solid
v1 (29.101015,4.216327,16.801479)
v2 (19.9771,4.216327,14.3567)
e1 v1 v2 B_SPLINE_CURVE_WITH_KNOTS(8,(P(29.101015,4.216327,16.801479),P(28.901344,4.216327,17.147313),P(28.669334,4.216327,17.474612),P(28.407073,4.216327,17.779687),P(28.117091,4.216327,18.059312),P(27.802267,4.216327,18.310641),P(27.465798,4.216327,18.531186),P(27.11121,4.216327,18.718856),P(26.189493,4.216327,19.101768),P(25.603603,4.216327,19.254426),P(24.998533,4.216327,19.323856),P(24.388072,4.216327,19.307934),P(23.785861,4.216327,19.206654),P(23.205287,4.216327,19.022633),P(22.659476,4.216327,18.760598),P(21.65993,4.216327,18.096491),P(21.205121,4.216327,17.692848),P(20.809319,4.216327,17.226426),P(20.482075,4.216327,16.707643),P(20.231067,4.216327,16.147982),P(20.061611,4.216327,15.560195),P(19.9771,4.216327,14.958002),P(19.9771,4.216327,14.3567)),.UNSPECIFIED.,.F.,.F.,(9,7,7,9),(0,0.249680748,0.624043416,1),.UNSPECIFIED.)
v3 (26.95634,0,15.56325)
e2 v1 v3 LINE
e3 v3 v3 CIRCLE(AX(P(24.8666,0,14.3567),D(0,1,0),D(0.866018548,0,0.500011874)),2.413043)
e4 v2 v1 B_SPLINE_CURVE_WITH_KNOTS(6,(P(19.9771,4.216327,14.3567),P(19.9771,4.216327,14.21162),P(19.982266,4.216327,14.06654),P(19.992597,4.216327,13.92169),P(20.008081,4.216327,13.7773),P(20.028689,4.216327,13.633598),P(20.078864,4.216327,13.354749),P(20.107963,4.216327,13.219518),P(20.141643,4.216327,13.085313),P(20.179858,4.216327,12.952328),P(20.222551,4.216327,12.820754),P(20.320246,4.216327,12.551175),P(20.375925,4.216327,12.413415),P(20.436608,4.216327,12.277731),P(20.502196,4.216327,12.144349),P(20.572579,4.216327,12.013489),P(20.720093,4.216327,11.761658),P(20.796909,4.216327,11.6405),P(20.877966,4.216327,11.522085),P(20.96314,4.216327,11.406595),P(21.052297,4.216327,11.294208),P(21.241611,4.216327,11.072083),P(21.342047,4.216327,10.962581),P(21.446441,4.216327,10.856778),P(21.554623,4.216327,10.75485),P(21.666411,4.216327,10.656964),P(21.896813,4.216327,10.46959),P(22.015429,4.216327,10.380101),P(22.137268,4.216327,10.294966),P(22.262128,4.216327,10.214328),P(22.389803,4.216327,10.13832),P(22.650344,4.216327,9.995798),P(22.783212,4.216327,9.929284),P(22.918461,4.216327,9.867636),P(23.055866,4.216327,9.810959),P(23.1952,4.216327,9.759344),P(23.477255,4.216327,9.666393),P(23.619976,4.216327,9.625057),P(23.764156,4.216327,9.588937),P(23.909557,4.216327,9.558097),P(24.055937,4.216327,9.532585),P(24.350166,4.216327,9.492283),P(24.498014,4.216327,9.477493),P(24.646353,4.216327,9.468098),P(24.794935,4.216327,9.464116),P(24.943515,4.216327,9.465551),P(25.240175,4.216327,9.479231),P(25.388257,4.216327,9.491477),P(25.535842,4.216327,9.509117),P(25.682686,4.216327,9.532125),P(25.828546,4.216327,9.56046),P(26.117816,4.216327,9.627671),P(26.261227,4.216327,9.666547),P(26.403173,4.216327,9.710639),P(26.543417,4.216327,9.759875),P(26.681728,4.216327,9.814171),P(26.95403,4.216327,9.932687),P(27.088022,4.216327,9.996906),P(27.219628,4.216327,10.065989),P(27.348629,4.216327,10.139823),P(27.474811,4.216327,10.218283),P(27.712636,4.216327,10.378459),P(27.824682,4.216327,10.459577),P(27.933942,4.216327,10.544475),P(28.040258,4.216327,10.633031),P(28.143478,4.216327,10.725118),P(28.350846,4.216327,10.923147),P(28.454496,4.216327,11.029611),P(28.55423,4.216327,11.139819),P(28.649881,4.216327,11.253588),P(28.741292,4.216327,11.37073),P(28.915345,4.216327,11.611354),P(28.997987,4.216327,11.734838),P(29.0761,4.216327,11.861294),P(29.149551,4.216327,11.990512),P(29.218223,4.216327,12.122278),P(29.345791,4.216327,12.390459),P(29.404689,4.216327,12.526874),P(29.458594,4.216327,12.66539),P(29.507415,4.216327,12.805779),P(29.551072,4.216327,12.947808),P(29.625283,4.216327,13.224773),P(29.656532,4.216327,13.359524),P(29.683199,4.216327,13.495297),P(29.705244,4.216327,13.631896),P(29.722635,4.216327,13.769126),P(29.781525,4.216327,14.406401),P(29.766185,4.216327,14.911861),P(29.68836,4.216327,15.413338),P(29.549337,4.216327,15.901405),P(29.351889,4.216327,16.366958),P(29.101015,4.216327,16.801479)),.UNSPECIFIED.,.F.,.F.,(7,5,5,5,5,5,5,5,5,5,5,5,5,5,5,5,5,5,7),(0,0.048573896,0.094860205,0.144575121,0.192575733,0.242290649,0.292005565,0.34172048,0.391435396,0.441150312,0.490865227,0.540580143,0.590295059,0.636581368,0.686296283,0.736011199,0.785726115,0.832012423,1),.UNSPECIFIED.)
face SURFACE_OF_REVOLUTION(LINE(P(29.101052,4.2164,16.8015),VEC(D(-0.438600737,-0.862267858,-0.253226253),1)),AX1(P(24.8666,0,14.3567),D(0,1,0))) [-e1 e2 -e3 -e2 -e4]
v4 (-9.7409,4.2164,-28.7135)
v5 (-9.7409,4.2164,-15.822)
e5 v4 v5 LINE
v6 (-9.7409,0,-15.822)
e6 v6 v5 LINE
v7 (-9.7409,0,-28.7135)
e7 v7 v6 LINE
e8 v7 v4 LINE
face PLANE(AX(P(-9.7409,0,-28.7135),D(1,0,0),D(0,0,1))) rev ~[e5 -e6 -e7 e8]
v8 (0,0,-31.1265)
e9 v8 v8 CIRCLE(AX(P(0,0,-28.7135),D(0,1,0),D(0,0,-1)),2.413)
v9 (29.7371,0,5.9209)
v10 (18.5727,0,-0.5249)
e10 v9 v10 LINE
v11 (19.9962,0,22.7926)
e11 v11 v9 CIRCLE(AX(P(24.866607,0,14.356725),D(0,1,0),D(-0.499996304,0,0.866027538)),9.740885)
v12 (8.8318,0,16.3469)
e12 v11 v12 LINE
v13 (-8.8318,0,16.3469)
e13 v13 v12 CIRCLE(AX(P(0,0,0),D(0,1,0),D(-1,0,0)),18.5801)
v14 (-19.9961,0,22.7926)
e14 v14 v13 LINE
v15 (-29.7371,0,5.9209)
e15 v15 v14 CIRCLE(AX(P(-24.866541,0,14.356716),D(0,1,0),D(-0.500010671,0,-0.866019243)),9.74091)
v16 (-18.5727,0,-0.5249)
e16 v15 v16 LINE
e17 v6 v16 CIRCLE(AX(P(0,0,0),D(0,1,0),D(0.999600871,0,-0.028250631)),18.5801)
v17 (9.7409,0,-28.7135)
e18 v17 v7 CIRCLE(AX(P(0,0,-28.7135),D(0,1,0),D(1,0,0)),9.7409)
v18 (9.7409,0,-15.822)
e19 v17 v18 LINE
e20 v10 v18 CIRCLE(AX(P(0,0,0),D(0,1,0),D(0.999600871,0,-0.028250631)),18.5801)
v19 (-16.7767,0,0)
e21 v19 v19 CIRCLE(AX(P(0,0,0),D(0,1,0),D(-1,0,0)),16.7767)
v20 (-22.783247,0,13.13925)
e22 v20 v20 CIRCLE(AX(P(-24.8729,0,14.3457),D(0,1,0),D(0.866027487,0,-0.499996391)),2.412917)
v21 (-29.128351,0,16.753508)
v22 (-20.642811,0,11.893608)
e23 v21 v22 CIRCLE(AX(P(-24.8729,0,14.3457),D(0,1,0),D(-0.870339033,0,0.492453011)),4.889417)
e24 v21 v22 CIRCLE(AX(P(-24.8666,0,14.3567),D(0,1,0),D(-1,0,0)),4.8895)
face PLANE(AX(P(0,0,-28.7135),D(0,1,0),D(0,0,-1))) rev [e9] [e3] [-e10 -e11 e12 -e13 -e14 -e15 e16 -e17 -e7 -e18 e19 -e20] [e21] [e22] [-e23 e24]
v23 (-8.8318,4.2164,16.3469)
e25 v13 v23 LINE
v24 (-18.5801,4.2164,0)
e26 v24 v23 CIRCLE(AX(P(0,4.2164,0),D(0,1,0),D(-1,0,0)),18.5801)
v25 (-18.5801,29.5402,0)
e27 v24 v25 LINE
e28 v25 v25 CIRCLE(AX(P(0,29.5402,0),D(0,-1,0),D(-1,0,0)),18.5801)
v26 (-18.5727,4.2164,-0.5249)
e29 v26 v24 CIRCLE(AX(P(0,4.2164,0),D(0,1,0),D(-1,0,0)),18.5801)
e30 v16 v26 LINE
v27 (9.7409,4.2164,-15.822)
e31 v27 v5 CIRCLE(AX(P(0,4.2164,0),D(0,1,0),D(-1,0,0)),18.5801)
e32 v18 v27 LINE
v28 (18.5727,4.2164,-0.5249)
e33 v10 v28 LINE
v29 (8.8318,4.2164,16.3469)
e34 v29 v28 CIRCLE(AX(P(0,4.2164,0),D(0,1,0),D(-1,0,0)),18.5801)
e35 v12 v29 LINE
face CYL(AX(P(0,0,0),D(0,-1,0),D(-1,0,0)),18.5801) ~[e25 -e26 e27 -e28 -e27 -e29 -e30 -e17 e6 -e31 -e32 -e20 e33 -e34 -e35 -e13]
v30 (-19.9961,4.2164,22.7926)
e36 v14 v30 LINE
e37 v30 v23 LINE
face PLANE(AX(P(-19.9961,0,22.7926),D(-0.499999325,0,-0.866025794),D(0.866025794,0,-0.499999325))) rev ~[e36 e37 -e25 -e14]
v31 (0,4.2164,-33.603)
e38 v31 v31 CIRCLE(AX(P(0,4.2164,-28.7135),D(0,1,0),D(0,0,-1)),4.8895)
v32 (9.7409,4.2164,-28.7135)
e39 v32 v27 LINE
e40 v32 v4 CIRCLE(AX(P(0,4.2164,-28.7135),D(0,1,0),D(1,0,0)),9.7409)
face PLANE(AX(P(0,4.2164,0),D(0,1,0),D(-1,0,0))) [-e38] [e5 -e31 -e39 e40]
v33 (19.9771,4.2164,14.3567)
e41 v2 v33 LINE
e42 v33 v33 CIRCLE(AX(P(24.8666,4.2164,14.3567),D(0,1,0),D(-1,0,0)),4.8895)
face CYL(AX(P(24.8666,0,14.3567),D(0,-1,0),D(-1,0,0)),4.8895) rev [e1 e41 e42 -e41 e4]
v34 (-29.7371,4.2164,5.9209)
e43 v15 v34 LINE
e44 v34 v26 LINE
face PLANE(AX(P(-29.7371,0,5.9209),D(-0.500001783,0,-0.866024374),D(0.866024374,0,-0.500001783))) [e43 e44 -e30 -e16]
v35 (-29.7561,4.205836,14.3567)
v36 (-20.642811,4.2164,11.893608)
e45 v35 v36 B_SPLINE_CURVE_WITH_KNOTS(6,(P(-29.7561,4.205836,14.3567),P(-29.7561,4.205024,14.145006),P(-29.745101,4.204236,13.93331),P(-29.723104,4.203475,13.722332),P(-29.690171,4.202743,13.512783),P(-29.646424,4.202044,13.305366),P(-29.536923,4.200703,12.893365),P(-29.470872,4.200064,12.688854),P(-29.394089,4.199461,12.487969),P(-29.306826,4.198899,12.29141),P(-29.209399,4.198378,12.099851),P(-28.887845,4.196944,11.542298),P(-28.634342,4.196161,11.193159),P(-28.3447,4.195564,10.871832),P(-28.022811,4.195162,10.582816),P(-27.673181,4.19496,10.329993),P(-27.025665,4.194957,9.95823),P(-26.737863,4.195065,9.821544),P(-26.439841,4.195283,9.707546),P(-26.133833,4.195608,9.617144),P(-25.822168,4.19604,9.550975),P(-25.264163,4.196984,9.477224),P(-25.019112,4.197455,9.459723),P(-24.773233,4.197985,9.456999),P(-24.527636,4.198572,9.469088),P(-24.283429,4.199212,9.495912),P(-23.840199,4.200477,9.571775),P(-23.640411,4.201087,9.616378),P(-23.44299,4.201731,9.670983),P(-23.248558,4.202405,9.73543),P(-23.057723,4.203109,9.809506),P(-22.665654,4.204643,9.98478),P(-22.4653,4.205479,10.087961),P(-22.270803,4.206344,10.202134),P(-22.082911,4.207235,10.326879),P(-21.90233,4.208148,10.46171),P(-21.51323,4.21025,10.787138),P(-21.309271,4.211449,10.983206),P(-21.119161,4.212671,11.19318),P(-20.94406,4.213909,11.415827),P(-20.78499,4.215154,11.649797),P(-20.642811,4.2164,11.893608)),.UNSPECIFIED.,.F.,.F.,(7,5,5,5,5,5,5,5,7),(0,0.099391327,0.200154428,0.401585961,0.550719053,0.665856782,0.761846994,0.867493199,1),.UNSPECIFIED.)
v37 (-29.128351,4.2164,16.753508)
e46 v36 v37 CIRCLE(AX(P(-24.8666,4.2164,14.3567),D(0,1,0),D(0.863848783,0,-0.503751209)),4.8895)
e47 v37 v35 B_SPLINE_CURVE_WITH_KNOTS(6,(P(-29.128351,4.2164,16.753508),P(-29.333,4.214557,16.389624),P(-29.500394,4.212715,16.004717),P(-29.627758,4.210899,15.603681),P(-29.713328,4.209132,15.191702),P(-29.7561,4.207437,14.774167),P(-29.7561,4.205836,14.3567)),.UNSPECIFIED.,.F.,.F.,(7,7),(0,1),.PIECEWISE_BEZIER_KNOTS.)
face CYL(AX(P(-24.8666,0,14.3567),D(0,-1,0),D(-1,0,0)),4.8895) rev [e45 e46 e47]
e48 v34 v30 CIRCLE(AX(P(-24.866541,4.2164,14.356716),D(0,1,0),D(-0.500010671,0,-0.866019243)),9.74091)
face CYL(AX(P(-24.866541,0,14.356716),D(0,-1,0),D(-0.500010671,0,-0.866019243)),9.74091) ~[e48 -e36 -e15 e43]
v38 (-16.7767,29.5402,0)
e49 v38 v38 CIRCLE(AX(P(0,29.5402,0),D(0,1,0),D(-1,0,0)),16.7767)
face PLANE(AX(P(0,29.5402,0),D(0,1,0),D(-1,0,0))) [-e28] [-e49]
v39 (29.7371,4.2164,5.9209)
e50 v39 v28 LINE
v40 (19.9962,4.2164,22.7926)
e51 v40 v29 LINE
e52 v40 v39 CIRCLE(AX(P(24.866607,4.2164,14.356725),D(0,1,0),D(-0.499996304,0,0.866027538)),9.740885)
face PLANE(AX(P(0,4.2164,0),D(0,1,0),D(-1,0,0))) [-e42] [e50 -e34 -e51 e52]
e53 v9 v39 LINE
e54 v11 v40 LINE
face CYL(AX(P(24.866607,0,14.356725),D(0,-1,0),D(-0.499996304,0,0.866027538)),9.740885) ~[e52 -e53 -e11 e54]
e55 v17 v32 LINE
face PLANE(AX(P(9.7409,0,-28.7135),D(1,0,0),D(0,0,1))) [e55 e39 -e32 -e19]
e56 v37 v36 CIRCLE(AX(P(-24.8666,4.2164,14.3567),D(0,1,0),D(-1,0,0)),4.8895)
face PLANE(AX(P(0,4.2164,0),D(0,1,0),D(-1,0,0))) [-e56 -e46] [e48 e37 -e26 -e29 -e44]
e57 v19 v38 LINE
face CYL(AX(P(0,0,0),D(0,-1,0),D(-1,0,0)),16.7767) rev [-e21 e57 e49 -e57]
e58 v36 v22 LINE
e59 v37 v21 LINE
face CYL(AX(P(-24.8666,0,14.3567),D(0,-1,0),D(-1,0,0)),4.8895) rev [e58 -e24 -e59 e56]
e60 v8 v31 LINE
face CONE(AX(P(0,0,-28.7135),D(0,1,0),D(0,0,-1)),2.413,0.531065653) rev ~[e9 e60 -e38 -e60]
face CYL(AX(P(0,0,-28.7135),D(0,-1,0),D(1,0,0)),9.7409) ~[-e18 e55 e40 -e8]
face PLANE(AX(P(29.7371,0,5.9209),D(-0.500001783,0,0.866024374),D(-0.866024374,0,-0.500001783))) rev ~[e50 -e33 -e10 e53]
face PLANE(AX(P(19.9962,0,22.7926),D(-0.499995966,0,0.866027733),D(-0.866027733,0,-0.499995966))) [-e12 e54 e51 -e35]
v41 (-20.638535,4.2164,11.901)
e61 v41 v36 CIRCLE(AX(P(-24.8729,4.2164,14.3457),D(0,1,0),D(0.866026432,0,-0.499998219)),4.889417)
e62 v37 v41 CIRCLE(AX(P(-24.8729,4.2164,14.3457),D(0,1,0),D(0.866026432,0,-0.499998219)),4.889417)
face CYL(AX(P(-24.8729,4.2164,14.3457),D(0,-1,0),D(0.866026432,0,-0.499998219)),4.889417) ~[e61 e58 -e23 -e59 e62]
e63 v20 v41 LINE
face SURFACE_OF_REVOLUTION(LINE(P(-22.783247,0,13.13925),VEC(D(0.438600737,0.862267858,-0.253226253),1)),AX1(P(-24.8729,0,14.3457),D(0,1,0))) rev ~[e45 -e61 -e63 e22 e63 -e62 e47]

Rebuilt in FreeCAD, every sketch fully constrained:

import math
import FreeCAD as App
import Part
import Sketcher
from FreeCAD import Vector
Q = App.Units.Quantity


def add_polygon(sketch, points):
    """Adds a closed chain of lines whose ends are joined by coincident constraints."""
    first, n = sketch.GeometryCount, len(points)
    for a, b in zip(points, points[1:] + points[:1]):
        sketch.addGeometry(Part.LineSegment(App.Vector(*a, 0), App.Vector(*b, 0)), False)
    for i in range(n):
        sketch.addConstraint(Sketcher.Constraint("Coincident", first + i, 2, first + (i + 1) % n, 1))

doc = App.newDocument("Part")
body = doc.addObject("PartDesign::Body", "Body")

# Sketch on XZ plane
sketch1 = body.newObject("Sketcher::SketchObject", "Sketch")
sketch1.AttachmentSupport = (doc.getObject("XZ_Plane"), [""])
sketch1.MapMode = "FlatFace"
sketch1.addGeometry(Part.Circle(Vector(0, 0, 0), Vector(0, 0, 1), 19), False)
sketch1.addGeometry(Part.Circle(Vector(0, 0, 0), Vector(0, 0, 1), 17), False)
sketch1.addConstraint(Sketcher.Constraint("Coincident", 0, 3, -1, 1))
sketch1.addConstraint(Sketcher.Constraint("Coincident", 1, 3, -1, 1))
sketch1.addConstraint(Sketcher.Constraint("Diameter", 0, Q("1.463 in")))
sketch1.addConstraint(Sketcher.Constraint("Diameter", 1, Q("1.321 in")))
pad1 = body.newObject("PartDesign::Pad", "Pad")
pad1.Profile = sketch1
pad1.Length = Q("1.163 in")
pad1.Reversed = True

# Sketch on XZ plane
sketch2 = body.newObject("Sketcher::SketchObject", "Sketch001")
sketch2.AttachmentSupport = (doc.getObject("XZ_Plane"), [""])
sketch2.MapMode = "FlatFace"
sketch2.addGeometry(Part.ArcOfCircle(Part.Circle(Vector(0, 0, 0), Vector(0, 0, 1), 18.6), math.radians(-2), math.radians(62)), False)
sketch2.addGeometry(Part.LineSegment(Vector(8.8, 16.3, 0), Vector(20, 22.8, 0)), False)
sketch2.addGeometry(Part.ArcOfCircle(Part.Circle(Vector(24.9, 14.4, 0), Vector(0, 0, 1), 9.7), math.radians(-60), math.radians(120)), False)
sketch2.addGeometry(Part.LineSegment(Vector(29.7, 5.9, 0), Vector(18.6, -0.5, 0)), False)
sketch2.addGeometry(Part.Circle(Vector(24.9, 14.4, 0), Vector(0, 0, 1), 4.9), False)
sketch2.addConstraint(Sketcher.Constraint("Coincident", 0, 2, 1, 1))
sketch2.addConstraint(Sketcher.Constraint("Tangent", 1, 2, 2, 2))
sketch2.addConstraint(Sketcher.Constraint("Tangent", 2, 1, 3, 1))
sketch2.addConstraint(Sketcher.Constraint("Coincident", 3, 2, 0, 1))
sketch2.addConstraint(Sketcher.Constraint("Coincident", 0, 3, -1, 1))
sketch2.addConstraint(Sketcher.Constraint("Coincident", 4, 3, 2, 3))
sketch2.addConstraint(Sketcher.Constraint("Parallel", 1, 3))
sketch2.addConstraint(Sketcher.Constraint("Equal", 1, 3))
sketch2.addConstraint(Sketcher.Constraint("Diameter", 4, Q("0.385 in")))
sketch2.addConstraint(Sketcher.Constraint("Angle", 1, Q("29.9997 deg")))
sketch2.addConstraint(Sketcher.Constraint("Radius", 0, Q("0.7315 in")))
sketch2.addConstraint(Sketcher.Constraint("Radius", 2, Q("0.3835 in")))
sketch2.addConstraint(Sketcher.Constraint("DistanceX", -1, 1, 2, 3, Q("0.979 in")))
pad2 = body.newObject("PartDesign::Pad", "Pad001")
pad2.Profile = sketch2
pad2.Length = Q("0.166 in")
pad2.Reversed = True

# Sketch on XZ plane
sketch3 = body.newObject("Sketcher::SketchObject", "Sketch002")
sketch3.AttachmentSupport = (doc.getObject("XZ_Plane"), [""])
sketch3.MapMode = "FlatFace"
sketch3.addGeometry(Part.ArcOfCircle(Part.Circle(Vector(0, 0, 0), Vector(0, 0, 1), 18.6), math.radians(118), math.radians(182)), False)
sketch3.addGeometry(Part.LineSegment(Vector(-18.6, -0.5, 0), Vector(-29.7, 5.9, 0)), False)
sketch3.addGeometry(Part.ArcOfCircle(Part.Circle(Vector(-24.9, 14.4, 0), Vector(0, 0, 1), 9.7), math.radians(60), math.radians(240)), False)
sketch3.addGeometry(Part.LineSegment(Vector(-20, 22.8, 0), Vector(-8.8, 16.3, 0)), False)
sketch3.addGeometry(Part.Circle(Vector(-24.9, 14.4, 0), Vector(0, 0, 1), 4.9), False)
sketch3.addConstraint(Sketcher.Constraint("Coincident", 0, 2, 1, 1))
sketch3.addConstraint(Sketcher.Constraint("Tangent", 1, 2, 2, 2))
sketch3.addConstraint(Sketcher.Constraint("Tangent", 2, 1, 3, 1))
sketch3.addConstraint(Sketcher.Constraint("Coincident", 3, 2, 0, 1))
sketch3.addConstraint(Sketcher.Constraint("Coincident", 0, 3, -1, 1))
sketch3.addConstraint(Sketcher.Constraint("Coincident", 4, 3, 2, 3))
sketch3.addConstraint(Sketcher.Constraint("Parallel", 1, 3))
sketch3.addConstraint(Sketcher.Constraint("Equal", 1, 3))
sketch3.addConstraint(Sketcher.Constraint("Diameter", 4, Q("0.385 in")))
sketch3.addConstraint(Sketcher.Constraint("Angle", 1, Q("150 deg")))
sketch3.addConstraint(Sketcher.Constraint("Radius", 0, Q("0.7315 in")))
sketch3.addConstraint(Sketcher.Constraint("Radius", 2, Q("0.3835 in")))
sketch3.addConstraint(Sketcher.Constraint("DistanceX", 2, 3, -1, 1, Q("0.979 in")))
pad3 = body.newObject("PartDesign::Pad", "Pad002")
pad3.Profile = sketch3
pad3.Length = Q("0.166 in")
pad3.Reversed = True

# Sketch on XZ plane
sketch4 = body.newObject("Sketcher::SketchObject", "Sketch003")
sketch4.AttachmentSupport = (doc.getObject("XZ_Plane"), [""])
sketch4.MapMode = "FlatFace"
sketch4.addGeometry(Part.LineSegment(Vector(-9.7, -28.7, 0), Vector(-9.7, -15.8, 0)), False)
sketch4.addGeometry(Part.ArcOfCircle(Part.Circle(Vector(0, 0, 0), Vector(0, 0, 1), 18.6), math.radians(-122), math.radians(-58)), False)
sketch4.addGeometry(Part.LineSegment(Vector(9.7, -15.8, 0), Vector(9.7, -28.7, 0)), False)
sketch4.addGeometry(Part.ArcOfCircle(Part.Circle(Vector(0, -28.7, 0), Vector(0, 0, 1), 9.7), math.radians(180), math.radians(360)), False)
sketch4.addGeometry(Part.Circle(Vector(0, -28.7, 0), Vector(0, 0, 1), 4.9), False)
sketch4.addConstraint(Sketcher.Constraint("Coincident", 0, 2, 1, 1))
sketch4.addConstraint(Sketcher.Constraint("Coincident", 1, 2, 2, 1))
sketch4.addConstraint(Sketcher.Constraint("Tangent", 2, 2, 3, 2))
sketch4.addConstraint(Sketcher.Constraint("Tangent", 3, 1, 0, 1))
sketch4.addConstraint(Sketcher.Constraint("Vertical", 0))
sketch4.addConstraint(Sketcher.Constraint("Vertical", 2))
sketch4.addConstraint(Sketcher.Constraint("Coincident", 1, 3, -1, 1))
sketch4.addConstraint(Sketcher.Constraint("Coincident", 4, 3, 3, 3))
sketch4.addConstraint(Sketcher.Constraint("PointOnObject", 3, 3, -2))
sketch4.addConstraint(Sketcher.Constraint("Diameter", 4, Q("0.385 in")))
sketch4.addConstraint(Sketcher.Constraint("Radius", 1, Q("0.7315 in")))
sketch4.addConstraint(Sketcher.Constraint("Radius", 3, Q("0.3835 in")))
sketch4.addConstraint(Sketcher.Constraint("DistanceY", 0, 1, 0, 2, 12.8915))
pad4 = body.newObject("PartDesign::Pad", "Pad003")
pad4.Profile = sketch4
pad4.Length = Q("0.166 in")
pad4.Reversed = True

# Sketch on an angled plane
sketch5 = body.newObject("Sketcher::SketchObject", "Sketch004")
sketch5.Placement = App.Placement(Vector(-13.7086, 0, 7.9), App.Rotation(Vector(0.866025404, 0, -0.5), Vector(0, 1, 0), Vector(0.5, 0, 0.866025404), "ZXY"))
add_polygon(sketch5, [(-8, 4.2), (-10.5, 0), (-8, 0)])  # lines 0-2
sketch5.addGeometry(Part.LineSegment(Vector(-12.9, 0, 0), Vector(-12.9, 4.2, 0)), True)  # axis
sketch5.addConstraint(Sketcher.Constraint("Horizontal", 1))
sketch5.addConstraint(Sketcher.Constraint("Vertical", 2))
sketch5.addConstraint(Sketcher.Constraint("Vertical", 3))
sketch5.addConstraint(Sketcher.Constraint("PointOnObject", 0, 2, -1))
sketch5.addConstraint(Sketcher.Constraint("PointOnObject", 3, 1, -1))
sketch5.addConstraint(Sketcher.Constraint("Horizontal", 2, 2, 3, 2))
sketch5.addConstraint(Sketcher.Constraint("DistanceY", 2, 1, 2, 2, Q("0.166 in")))
sketch5.addConstraint(Sketcher.Constraint("DistanceX", 1, 1, 1, 2, Q("0.0975 in")))
sketch5.addConstraint(Sketcher.Constraint("DistanceX", 3, 1, 0, 2, Q("0.095 in")))
sketch5.addConstraint(Sketcher.Constraint("DistanceX", 0, 2, -1, 1, 10.4785))
revolution = body.newObject("PartDesign::Revolution", "Revolution")
revolution.Profile = sketch5
revolution.ReferenceAxis = (sketch5, ["Axis0"])
revolution.Angle = 360

# Sketch on an angled plane
sketch6 = body.newObject("Sketcher::SketchObject", "Sketch005")
sketch6.Placement = App.Placement(Vector(0, 0, 0), App.Rotation(Vector(0, 1, 0), Vector(0.866025404, 0, 0.5), Vector(0.5, 0, -0.866025404), "ZXY"))
add_polygon(sketch6, [(0, 33.6), (0, 31.1), (4.2, 33.6)])  # lines 0-2
sketch6.addGeometry(Part.LineSegment(Vector(0, 28.7, 0), Vector(4.2, 28.7, 0)), True)  # axis
sketch6.addConstraint(Sketcher.Constraint("Vertical", 0))
sketch6.addConstraint(Sketcher.Constraint("Horizontal", 2))
sketch6.addConstraint(Sketcher.Constraint("Horizontal", 3))
sketch6.addConstraint(Sketcher.Constraint("PointOnObject", 0, 2, -2))
sketch6.addConstraint(Sketcher.Constraint("PointOnObject", 3, 1, -2))
sketch6.addConstraint(Sketcher.Constraint("Vertical", 1, 2, 3, 2))
sketch6.addConstraint(Sketcher.Constraint("DistanceX", 2, 2, 2, 1, Q("0.166 in")))
sketch6.addConstraint(Sketcher.Constraint("DistanceY", 0, 2, 0, 1, Q("0.0975 in")))
sketch6.addConstraint(Sketcher.Constraint("DistanceY", 3, 1, 0, 2, Q("0.095 in")))
sketch6.addConstraint(Sketcher.Constraint("DistanceY", -1, 1, 0, 2, 31.1265))
revolution2 = body.newObject("PartDesign::Revolution", "Revolution001")
revolution2.Profile = sketch6
revolution2.ReferenceAxis = (sketch6, ["Axis0"])
revolution2.Angle = 360

# Sketch on YZ plane
sketch7 = body.newObject("Sketcher::SketchObject", "Sketch006")
sketch7.AttachmentSupport = (doc.getObject("YZ_Plane"), [""])
sketch7.MapMode = "FlatFace"
add_polygon(sketch7, [(0, -33.6), (0, -31.1), (4.2, -33.6)])  # lines 0-2
sketch7.addGeometry(Part.LineSegment(Vector(0, -28.7, 0), Vector(4.2, -28.7, 0)), True)  # axis
sketch7.addConstraint(Sketcher.Constraint("Vertical", 0))
sketch7.addConstraint(Sketcher.Constraint("Horizontal", 2))
sketch7.addConstraint(Sketcher.Constraint("Horizontal", 3))
sketch7.addConstraint(Sketcher.Constraint("PointOnObject", 0, 2, -2))
sketch7.addConstraint(Sketcher.Constraint("PointOnObject", 3, 1, -2))
sketch7.addConstraint(Sketcher.Constraint("Vertical", 1, 2, 3, 2))
sketch7.addConstraint(Sketcher.Constraint("DistanceX", 2, 2, 2, 1, Q("0.166 in")))
sketch7.addConstraint(Sketcher.Constraint("DistanceY", 0, 1, 0, 2, Q("0.0975 in")))
sketch7.addConstraint(Sketcher.Constraint("DistanceY", 0, 2, 3, 1, Q("0.095 in")))
sketch7.addConstraint(Sketcher.Constraint("DistanceY", 0, 2, -1, 1, 31.1265))
revolution3 = body.newObject("PartDesign::Revolution", "Revolution002")
revolution3.Profile = sketch7
revolution3.ReferenceAxis = (sketch7, ["Axis0"])
revolution3.Angle = 360

doc.recompute()
